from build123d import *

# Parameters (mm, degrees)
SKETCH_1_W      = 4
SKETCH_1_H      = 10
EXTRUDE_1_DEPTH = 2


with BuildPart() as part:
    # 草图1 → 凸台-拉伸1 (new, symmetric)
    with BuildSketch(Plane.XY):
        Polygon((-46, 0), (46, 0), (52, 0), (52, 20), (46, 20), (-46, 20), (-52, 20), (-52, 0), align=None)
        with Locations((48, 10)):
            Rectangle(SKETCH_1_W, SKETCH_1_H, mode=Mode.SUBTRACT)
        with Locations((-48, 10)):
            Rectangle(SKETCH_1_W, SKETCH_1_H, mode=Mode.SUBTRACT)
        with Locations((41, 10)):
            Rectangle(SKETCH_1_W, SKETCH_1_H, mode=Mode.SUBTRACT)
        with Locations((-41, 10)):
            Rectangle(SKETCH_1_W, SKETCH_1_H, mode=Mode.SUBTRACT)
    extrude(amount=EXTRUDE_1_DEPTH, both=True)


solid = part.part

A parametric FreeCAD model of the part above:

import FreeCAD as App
import Part
import Sketcher
Q = App.Units.Quantity


def add_polygon(sketch, points):
    """Adds a closed chain of lines whose ends are joined by coincident constraints."""
    first, n = sketch.GeometryCount, len(points)
    for a, b in zip(points, points[1:] + points[:1]):
        sketch.addGeometry(Part.LineSegment(App.Vector(*a, 0), App.Vector(*b, 0)), False)
    for i in range(n):
        sketch.addConstraint(Sketcher.Constraint("Coincident", first + i, 2, first + (i + 1) % n, 1))

doc = App.newDocument("Part")
params = doc.addObject("Spreadsheet::Sheet", "Params")
for row, (alias, value) in enumerate([
    ("sketch1_width", "104 mm"),
    ("sketch1_width2", "4 mm"),
    ("sketch1_height", "20 mm"),
    ("sketch1_height2", "10 mm"),
    ("pad1_length", "4 mm"),
], start=1):
    params.set(f"A{row}", alias)
    params.set(f"B{row}", "=" + value)
    params.setAlias(f"B{row}", alias)

body = doc.addObject("PartDesign::Body", "Body")

sketch1 = doc.addObject("Sketcher::SketchObject", "Sketch")
body.addObject(sketch1)
sketch1.AttachmentSupport = (doc.XY_Plane, [""])
sketch1.MapMode = "FlatFace"
add_polygon(sketch1, [(52, 0), (52, 20), (-52, 20), (-52, 0)])
add_polygon(sketch1, [(-46, 5), (-50, 5), (-50, 15), (-46, 15)])
add_polygon(sketch1, [(-39, 5), (-43, 5), (-43, 15), (-39, 15)])
add_polygon(sketch1, [(43, 5), (39, 5), (39, 15), (43, 15)])
add_polygon(sketch1, [(50, 5), (46, 5), (46, 15), (50, 15)])
sketch1.addConstraint([
    Sketcher.Constraint("Vertical", 0),
    Sketcher.Constraint("Horizontal", 1),
    Sketcher.Constraint("Vertical", 2),
    Sketcher.Constraint("Horizontal", 3),
    Sketcher.Constraint("Horizontal", 4),
    Sketcher.Constraint("Vertical", 5),
    Sketcher.Constraint("Horizontal", 6),
    Sketcher.Constraint("Vertical", 7),
    Sketcher.Constraint("Horizontal", 8),
    Sketcher.Constraint("Vertical", 9),
    Sketcher.Constraint("Horizontal", 10),
    Sketcher.Constraint("Vertical", 11),
    Sketcher.Constraint("Horizontal", 12),
    Sketcher.Constraint("Vertical", 13),
    Sketcher.Constraint("Horizontal", 14),
    Sketcher.Constraint("Vertical", 15),
    Sketcher.Constraint("Horizontal", 16),
    Sketcher.Constraint("Vertical", 17),
    Sketcher.Constraint("Horizontal", 18),
    Sketcher.Constraint("Vertical", 19),
    Sketcher.Constraint("Symmetric", 2, 2, 3, 2, -1, 1),
    Sketcher.Constraint("Symmetric", 11, 2, 12, 2, -2),
    Sketcher.Constraint("Symmetric", 9, 2, 14, 2, -2),
    Sketcher.Constraint("Symmetric", 7, 2, 16, 2, -2),
    Sketcher.Constraint("Symmetric", 5, 2, 18, 2, -2),
    Sketcher.Constraint("Horizontal", 7, 2, 8, 2),
    Sketcher.Constraint("Horizontal", 6, 2, 9, 2),
    Sketcher.Constraint("Equal", 6, 8),
    Sketcher.Constraint("DistanceX", 1, 2, 1, 1, Q("104 mm")),
    Sketcher.Constraint("DistanceX", 4, 2, 4, 1, Q("4 mm")),
    Sketcher.Constraint("DistanceY", 0, 1, 0, 2, Q("20 mm")),
    Sketcher.Constraint("DistanceY", 5, 1, 5, 2, Q("10 mm")),
    Sketcher.Constraint("DistanceX", 4, 2, -1, 1, Q("50 mm")),
    Sketcher.Constraint("DistanceY", -1, 1, 4, 2, Q("5 mm")),
    Sketcher.Constraint("DistanceX", 8, 2, -1, 1, Q("43 mm")),
])
sketch1.setExpression("Constraints[48]", "Params.sketch1_width")
sketch1.setExpression("Constraints[49]", "Params.sketch1_width2")
sketch1.setExpression("Constraints[50]", "Params.sketch1_height")
sketch1.setExpression("Constraints[51]", "Params.sketch1_height2")
pad1 = doc.addObject("PartDesign::Pad", "Pad")
body.addObject(pad1)
pad1.Profile = sketch1
pad1.setExpression("Length", "Params.pad1_length")
pad1.Midplane = True

doc.recompute()
